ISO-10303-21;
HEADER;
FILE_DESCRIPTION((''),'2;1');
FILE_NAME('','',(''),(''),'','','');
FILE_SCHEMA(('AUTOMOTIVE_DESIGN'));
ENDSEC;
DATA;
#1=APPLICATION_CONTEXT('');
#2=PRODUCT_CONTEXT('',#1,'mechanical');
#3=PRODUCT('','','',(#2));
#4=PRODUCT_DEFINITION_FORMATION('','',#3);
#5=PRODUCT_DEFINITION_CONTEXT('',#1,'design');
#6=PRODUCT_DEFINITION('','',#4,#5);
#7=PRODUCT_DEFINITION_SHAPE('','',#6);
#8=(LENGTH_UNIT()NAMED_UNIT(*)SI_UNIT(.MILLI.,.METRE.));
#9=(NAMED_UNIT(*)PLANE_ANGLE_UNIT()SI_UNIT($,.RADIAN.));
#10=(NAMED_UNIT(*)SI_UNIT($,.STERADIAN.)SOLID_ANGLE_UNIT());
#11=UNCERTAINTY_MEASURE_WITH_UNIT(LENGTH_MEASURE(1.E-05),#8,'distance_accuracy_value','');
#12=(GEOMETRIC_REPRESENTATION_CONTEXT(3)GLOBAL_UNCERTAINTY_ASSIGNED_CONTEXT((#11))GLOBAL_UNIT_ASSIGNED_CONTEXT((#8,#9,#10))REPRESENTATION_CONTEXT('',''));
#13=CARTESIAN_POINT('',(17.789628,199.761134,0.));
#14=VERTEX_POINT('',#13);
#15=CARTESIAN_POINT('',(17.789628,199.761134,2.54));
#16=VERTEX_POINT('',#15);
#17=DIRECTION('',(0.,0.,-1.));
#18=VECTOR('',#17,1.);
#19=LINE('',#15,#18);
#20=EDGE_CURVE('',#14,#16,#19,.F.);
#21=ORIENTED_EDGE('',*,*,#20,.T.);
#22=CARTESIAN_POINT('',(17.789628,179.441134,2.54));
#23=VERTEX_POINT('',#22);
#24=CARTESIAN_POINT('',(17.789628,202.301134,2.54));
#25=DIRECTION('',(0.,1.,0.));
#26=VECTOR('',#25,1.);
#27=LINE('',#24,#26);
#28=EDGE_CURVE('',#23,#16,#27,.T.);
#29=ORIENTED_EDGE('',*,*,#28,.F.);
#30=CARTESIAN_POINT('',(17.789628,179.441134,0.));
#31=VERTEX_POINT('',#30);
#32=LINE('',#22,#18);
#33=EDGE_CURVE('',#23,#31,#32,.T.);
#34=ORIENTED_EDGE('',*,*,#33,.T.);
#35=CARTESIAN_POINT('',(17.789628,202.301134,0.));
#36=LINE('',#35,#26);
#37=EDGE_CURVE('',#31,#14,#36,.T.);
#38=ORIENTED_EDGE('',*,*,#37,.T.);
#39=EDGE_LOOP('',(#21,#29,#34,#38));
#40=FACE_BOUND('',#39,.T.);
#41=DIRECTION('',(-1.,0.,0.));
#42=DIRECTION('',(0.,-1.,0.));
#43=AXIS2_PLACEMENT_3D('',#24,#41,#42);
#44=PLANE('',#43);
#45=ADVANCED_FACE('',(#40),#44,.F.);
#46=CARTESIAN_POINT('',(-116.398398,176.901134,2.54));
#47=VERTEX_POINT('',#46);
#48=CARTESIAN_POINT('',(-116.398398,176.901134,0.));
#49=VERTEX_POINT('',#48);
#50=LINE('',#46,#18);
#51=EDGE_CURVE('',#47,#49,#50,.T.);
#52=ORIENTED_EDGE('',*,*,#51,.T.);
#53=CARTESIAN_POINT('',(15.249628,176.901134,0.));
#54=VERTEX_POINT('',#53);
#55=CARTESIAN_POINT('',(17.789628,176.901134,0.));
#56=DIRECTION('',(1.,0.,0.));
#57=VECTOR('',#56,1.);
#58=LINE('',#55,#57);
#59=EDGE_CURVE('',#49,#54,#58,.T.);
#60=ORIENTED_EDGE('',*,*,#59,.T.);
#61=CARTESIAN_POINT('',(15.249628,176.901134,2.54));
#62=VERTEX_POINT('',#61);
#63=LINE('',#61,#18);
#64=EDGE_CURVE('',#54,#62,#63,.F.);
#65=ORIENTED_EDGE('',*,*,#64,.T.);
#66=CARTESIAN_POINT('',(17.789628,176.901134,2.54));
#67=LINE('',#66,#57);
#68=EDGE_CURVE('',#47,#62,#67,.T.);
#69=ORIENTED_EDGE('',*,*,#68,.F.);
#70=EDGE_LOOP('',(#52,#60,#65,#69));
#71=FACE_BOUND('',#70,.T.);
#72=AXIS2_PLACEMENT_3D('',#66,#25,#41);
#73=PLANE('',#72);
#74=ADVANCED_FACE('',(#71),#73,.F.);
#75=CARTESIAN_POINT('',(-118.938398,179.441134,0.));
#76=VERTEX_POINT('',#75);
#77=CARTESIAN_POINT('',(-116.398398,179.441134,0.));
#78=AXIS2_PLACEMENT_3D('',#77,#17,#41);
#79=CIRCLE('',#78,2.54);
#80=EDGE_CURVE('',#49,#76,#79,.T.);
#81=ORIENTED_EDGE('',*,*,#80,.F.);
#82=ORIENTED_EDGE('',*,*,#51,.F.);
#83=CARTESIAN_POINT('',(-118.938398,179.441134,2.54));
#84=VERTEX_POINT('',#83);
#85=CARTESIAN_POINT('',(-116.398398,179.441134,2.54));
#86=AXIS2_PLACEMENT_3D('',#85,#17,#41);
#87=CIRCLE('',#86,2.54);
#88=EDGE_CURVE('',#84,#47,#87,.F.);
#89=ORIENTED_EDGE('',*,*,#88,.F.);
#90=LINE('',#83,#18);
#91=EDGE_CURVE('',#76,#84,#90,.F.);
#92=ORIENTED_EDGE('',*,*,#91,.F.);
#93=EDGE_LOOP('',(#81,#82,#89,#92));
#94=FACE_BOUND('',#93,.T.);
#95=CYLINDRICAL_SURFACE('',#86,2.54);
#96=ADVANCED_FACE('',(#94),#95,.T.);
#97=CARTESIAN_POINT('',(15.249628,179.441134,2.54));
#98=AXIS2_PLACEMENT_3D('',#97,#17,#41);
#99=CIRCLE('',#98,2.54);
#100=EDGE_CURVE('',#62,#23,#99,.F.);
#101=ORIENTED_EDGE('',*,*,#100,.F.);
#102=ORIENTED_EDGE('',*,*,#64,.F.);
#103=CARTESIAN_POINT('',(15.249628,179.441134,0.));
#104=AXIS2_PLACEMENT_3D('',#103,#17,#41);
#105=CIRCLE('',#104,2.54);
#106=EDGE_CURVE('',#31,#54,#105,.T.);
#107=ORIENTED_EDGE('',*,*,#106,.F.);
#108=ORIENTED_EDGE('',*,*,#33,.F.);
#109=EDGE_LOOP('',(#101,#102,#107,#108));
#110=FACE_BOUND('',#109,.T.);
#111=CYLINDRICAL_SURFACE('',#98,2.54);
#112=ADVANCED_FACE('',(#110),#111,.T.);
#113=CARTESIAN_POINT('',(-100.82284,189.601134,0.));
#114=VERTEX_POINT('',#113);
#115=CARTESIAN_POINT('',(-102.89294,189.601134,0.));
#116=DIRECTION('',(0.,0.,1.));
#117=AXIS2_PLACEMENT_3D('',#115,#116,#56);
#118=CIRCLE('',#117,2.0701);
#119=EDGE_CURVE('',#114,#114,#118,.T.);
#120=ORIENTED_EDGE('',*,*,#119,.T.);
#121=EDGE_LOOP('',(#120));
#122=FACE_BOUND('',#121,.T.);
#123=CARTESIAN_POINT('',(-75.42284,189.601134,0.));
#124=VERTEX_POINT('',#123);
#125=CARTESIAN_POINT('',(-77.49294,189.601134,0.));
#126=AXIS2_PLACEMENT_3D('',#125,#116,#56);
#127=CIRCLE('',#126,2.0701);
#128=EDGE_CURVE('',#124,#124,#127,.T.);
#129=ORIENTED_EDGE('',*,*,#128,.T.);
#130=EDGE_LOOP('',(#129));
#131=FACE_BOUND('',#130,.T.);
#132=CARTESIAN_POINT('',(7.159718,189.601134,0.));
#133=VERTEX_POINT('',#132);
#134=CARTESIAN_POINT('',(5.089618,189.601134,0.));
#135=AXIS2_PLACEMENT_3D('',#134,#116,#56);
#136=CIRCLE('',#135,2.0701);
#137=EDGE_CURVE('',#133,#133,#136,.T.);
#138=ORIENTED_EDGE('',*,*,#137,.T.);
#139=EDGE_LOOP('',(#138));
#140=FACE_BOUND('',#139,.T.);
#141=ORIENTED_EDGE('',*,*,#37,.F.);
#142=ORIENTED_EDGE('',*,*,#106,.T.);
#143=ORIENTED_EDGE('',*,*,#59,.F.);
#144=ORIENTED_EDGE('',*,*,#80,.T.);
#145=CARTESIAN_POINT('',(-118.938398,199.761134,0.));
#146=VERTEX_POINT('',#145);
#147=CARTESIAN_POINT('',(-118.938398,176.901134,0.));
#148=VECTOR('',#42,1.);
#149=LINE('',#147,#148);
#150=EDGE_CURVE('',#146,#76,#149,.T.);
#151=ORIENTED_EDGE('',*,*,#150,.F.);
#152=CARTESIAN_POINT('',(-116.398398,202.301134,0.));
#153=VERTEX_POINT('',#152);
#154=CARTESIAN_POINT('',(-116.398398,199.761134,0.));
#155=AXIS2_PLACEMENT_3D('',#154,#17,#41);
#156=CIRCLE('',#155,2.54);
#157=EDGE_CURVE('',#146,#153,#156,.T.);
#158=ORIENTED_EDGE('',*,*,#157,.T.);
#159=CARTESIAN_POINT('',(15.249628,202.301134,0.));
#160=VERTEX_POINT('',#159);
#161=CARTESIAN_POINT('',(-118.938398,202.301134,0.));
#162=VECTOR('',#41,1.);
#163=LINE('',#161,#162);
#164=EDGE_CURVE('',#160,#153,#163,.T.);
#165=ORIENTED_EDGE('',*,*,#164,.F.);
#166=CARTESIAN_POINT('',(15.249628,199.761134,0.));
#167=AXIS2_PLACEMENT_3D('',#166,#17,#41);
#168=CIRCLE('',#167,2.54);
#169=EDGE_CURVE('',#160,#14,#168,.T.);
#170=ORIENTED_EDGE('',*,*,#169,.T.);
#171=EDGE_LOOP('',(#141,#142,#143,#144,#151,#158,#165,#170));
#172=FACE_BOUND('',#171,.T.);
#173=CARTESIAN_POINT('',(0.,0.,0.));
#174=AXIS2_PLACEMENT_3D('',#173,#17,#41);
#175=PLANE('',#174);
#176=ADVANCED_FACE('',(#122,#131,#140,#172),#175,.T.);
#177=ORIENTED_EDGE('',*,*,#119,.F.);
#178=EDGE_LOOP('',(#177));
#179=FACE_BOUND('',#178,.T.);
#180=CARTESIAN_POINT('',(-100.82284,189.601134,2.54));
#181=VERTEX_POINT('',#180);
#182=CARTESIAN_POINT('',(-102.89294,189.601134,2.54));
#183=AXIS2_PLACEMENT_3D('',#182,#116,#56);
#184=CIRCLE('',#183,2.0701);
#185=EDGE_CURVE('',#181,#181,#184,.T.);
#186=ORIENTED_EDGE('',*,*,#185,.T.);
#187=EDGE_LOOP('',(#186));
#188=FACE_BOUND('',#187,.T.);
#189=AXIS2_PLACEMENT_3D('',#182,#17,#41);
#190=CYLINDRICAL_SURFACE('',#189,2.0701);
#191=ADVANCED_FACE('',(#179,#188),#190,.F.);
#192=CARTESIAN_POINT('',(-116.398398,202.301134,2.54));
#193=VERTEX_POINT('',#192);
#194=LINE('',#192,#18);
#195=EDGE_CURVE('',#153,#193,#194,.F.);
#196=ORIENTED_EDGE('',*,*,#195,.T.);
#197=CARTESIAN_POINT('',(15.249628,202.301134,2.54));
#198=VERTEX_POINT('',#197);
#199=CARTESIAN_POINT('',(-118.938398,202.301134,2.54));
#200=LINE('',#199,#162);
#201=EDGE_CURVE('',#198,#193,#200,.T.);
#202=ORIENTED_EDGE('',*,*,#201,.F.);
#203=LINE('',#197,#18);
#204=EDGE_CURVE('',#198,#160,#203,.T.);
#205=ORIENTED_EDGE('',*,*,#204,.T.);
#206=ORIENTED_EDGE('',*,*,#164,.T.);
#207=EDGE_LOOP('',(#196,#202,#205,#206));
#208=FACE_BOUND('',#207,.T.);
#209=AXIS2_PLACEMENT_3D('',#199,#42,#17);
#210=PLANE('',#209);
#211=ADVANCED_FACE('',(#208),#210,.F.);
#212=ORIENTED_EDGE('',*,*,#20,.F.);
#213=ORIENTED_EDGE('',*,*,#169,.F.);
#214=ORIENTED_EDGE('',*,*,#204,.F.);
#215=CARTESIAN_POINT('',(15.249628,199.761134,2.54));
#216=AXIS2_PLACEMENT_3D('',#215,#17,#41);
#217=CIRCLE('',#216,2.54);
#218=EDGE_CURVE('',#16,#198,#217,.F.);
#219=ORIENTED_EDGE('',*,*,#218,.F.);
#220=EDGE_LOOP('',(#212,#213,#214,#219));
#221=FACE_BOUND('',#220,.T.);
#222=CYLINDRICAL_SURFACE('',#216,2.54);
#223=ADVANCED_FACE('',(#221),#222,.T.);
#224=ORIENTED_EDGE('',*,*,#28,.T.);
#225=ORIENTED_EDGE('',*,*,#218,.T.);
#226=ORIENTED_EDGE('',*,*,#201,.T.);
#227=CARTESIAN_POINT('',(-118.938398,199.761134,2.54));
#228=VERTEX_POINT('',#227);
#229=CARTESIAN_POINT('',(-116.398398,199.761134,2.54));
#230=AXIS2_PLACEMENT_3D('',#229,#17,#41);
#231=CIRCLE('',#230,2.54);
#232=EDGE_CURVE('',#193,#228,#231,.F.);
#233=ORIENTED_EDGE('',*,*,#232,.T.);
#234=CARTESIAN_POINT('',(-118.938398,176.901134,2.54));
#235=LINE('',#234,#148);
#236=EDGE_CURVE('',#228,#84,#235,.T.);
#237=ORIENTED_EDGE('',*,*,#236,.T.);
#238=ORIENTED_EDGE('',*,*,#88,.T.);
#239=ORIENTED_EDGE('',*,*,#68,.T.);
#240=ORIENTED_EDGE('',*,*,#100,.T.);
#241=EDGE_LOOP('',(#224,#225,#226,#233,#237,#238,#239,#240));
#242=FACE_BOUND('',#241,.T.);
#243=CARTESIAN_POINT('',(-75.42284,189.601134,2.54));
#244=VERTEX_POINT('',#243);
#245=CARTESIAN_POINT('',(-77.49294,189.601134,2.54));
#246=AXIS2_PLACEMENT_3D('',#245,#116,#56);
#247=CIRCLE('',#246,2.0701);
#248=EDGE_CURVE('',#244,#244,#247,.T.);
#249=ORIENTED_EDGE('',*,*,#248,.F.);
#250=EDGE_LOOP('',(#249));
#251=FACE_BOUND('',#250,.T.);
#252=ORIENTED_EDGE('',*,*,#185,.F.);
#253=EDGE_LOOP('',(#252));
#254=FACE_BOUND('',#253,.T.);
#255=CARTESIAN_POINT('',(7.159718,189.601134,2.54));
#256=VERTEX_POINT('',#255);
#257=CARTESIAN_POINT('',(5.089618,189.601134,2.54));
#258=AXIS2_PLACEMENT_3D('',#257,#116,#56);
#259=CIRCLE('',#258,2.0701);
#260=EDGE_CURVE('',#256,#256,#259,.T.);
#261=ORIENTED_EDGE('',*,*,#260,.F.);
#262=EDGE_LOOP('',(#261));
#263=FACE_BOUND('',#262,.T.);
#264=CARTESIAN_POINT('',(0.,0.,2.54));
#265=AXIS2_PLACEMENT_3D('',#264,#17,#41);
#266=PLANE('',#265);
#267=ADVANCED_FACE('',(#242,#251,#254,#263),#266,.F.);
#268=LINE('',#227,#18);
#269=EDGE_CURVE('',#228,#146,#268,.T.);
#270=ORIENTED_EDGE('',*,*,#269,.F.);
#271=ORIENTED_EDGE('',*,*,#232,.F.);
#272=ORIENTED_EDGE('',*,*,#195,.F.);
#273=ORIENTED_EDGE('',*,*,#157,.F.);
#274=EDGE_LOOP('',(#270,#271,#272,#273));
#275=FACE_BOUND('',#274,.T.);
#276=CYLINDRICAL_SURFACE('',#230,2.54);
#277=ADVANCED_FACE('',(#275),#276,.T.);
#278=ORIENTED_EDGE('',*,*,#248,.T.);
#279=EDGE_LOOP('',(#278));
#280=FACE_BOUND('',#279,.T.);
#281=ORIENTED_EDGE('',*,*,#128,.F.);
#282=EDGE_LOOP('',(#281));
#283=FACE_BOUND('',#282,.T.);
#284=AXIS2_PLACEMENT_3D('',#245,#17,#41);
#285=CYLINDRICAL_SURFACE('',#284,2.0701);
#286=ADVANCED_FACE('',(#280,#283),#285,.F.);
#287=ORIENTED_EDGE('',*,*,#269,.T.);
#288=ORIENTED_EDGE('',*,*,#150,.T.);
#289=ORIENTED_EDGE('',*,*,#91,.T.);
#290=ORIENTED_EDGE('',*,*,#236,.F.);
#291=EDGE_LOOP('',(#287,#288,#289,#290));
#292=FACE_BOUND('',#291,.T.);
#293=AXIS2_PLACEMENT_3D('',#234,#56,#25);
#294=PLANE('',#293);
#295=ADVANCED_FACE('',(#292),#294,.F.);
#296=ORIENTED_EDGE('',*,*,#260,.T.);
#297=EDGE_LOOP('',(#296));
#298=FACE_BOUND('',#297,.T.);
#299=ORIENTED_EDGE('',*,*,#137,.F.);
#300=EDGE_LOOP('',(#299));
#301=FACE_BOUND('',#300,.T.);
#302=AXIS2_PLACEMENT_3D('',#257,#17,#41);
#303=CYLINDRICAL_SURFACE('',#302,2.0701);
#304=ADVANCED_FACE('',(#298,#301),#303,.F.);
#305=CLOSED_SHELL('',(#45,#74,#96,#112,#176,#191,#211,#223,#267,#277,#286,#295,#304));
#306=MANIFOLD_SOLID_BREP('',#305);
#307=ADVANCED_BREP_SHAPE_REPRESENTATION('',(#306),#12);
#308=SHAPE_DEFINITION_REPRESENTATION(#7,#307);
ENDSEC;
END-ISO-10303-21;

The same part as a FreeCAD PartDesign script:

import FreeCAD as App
import Part
import Sketcher

V = App.Vector
Q = App.Units.Quantity


def edges_at(feature, points):
    """Names of the edges that pass closest to the given points."""
    edges = feature.Shape.Edges
    near = lambda p: min(range(len(edges)), key=lambda i: edges[i].distToShape(Part.Vertex(*p))[0])
    return sorted({f"Edge{near(p) + 1}" for p in points})

doc = App.newDocument("Part")
params = doc.addObject("Spreadsheet::Sheet", "Params")
for row, (alias, value) in enumerate([
    ("sketch1_height", "1 in"),
    ("sketch1_diameter", "0.163 in"),
    ("pad1_length", "0.1 in"),
    ("fillet_radius", "0.1 in"),
], start=1):
    params.set(f"A{row}", alias)
    params.set(f"B{row}", "=" + value)
    params.setAlias(f"B{row}", alias)

body = doc.addObject("PartDesign::Body", "Body")

# Sketch on XY plane
sketch1 = body.newObject("Sketcher::SketchObject", "Sketch")
sketch1.AttachmentSupport = (doc.getObject("XY_Plane"), [""])
sketch1.MapMode = "FlatFace"
sketch1.addGeometry(Part.LineSegment(V(-118.9, 202.3, 0), V(-118.9, 176.9, 0)), False)
sketch1.addGeometry(Part.LineSegment(V(-118.9, 176.9, 0), V(17.8, 176.9, 0)), False)
sketch1.addGeometry(Part.LineSegment(V(17.8, 176.9, 0), V(17.8, 202.3, 0)), False)
sketch1.addGeometry(Part.LineSegment(V(17.8, 202.3, 0), V(-118.9, 202.3, 0)), False)
sketch1.addGeometry(Part.Circle(V(5.1, 189.6, 0), V(0, 0, 1), 2.1), False)
sketch1.addGeometry(Part.Circle(V(-102.9, 189.6, 0), V(0, 0, 1), 2.1), False)
sketch1.addGeometry(Part.Circle(V(-77.5, 189.6, 0), V(0, 0, 1), 2.1), False)
sketch1.addConstraint(Sketcher.Constraint("Coincident", 0, 2, 1, 1))
sketch1.addConstraint(Sketcher.Constraint("Coincident", 1, 2, 2, 1))
sketch1.addConstraint(Sketcher.Constraint("Coincident", 2, 2, 3, 1))
sketch1.addConstraint(Sketcher.Constraint("Coincident", 3, 2, 0, 1))
sketch1.addConstraint(Sketcher.Constraint("Vertical", 0))
sketch1.addConstraint(Sketcher.Constraint("Horizontal", 1))
sketch1.addConstraint(Sketcher.Constraint("Vertical", 2))
sketch1.addConstraint(Sketcher.Constraint("Horizontal", 3))
sketch1.addConstraint(Sketcher.Constraint("Equal", 4, 5))
sketch1.addConstraint(Sketcher.Constraint("Equal", 5, 6))
sketch1.addConstraint(Sketcher.Constraint("Horizontal", 4, 3, 5, 3))
sketch1.addConstraint(Sketcher.Constraint("Horizontal", 5, 3, 6, 3))
sketch1.addConstraint(Sketcher.Constraint("DistanceY", 0, 2, 0, 1, Q("1 in")))
sketch1.addConstraint(Sketcher.Constraint("Diameter", 4, Q("0.163 in")))
sketch1.addConstraint(Sketcher.Constraint("DistanceX", 5, 3, 6, 3, Q("1 in")))
sketch1.addConstraint(Sketcher.Constraint("DistanceY", 0, 2, 5, 3, Q("0.5 in")))
sketch1.addConstraint(Sketcher.Constraint("DistanceX", 0, 2, -1, 1, Q("118.938398 mm")))
sketch1.addConstraint(Sketcher.Constraint("DistanceX", 1, 1, 1, 2, Q("136.728027 mm")))
sketch1.addConstraint(Sketcher.Constraint("DistanceX", 5, 3, -1, 1, Q("102.89294 mm")))
sketch1.addConstraint(Sketcher.Constraint("DistanceX", 4, 3, 1, 2, Q("12.70001 mm")))
sketch1.addConstraint(Sketcher.Constraint("DistanceY", -1, 1, 4, 3, Q("189.601134 mm")))
sketch1.setExpression("Constraints[12]", "Params.sketch1_height")
sketch1.setExpression("Constraints[13]", "Params.sketch1_diameter")
pad1 = body.newObject("PartDesign::Pad", "Pad")
pad1.Profile = sketch1
pad1.setExpression("Length", "Params.pad1_length")
doc.recompute()

fillet = body.newObject("PartDesign::Fillet", "Fillet")
fillet.Base = (pad1, edges_at(pad1, [
    (17.79, 202.301, 1.27),
    (17.79, 176.901, 1.27),
    (-118.938, 176.901, 1.27),
    (-118.938, 202.301, 1.27),
]))
fillet.setExpression("Radius", "Params.fillet_radius")

doc.recompute()
